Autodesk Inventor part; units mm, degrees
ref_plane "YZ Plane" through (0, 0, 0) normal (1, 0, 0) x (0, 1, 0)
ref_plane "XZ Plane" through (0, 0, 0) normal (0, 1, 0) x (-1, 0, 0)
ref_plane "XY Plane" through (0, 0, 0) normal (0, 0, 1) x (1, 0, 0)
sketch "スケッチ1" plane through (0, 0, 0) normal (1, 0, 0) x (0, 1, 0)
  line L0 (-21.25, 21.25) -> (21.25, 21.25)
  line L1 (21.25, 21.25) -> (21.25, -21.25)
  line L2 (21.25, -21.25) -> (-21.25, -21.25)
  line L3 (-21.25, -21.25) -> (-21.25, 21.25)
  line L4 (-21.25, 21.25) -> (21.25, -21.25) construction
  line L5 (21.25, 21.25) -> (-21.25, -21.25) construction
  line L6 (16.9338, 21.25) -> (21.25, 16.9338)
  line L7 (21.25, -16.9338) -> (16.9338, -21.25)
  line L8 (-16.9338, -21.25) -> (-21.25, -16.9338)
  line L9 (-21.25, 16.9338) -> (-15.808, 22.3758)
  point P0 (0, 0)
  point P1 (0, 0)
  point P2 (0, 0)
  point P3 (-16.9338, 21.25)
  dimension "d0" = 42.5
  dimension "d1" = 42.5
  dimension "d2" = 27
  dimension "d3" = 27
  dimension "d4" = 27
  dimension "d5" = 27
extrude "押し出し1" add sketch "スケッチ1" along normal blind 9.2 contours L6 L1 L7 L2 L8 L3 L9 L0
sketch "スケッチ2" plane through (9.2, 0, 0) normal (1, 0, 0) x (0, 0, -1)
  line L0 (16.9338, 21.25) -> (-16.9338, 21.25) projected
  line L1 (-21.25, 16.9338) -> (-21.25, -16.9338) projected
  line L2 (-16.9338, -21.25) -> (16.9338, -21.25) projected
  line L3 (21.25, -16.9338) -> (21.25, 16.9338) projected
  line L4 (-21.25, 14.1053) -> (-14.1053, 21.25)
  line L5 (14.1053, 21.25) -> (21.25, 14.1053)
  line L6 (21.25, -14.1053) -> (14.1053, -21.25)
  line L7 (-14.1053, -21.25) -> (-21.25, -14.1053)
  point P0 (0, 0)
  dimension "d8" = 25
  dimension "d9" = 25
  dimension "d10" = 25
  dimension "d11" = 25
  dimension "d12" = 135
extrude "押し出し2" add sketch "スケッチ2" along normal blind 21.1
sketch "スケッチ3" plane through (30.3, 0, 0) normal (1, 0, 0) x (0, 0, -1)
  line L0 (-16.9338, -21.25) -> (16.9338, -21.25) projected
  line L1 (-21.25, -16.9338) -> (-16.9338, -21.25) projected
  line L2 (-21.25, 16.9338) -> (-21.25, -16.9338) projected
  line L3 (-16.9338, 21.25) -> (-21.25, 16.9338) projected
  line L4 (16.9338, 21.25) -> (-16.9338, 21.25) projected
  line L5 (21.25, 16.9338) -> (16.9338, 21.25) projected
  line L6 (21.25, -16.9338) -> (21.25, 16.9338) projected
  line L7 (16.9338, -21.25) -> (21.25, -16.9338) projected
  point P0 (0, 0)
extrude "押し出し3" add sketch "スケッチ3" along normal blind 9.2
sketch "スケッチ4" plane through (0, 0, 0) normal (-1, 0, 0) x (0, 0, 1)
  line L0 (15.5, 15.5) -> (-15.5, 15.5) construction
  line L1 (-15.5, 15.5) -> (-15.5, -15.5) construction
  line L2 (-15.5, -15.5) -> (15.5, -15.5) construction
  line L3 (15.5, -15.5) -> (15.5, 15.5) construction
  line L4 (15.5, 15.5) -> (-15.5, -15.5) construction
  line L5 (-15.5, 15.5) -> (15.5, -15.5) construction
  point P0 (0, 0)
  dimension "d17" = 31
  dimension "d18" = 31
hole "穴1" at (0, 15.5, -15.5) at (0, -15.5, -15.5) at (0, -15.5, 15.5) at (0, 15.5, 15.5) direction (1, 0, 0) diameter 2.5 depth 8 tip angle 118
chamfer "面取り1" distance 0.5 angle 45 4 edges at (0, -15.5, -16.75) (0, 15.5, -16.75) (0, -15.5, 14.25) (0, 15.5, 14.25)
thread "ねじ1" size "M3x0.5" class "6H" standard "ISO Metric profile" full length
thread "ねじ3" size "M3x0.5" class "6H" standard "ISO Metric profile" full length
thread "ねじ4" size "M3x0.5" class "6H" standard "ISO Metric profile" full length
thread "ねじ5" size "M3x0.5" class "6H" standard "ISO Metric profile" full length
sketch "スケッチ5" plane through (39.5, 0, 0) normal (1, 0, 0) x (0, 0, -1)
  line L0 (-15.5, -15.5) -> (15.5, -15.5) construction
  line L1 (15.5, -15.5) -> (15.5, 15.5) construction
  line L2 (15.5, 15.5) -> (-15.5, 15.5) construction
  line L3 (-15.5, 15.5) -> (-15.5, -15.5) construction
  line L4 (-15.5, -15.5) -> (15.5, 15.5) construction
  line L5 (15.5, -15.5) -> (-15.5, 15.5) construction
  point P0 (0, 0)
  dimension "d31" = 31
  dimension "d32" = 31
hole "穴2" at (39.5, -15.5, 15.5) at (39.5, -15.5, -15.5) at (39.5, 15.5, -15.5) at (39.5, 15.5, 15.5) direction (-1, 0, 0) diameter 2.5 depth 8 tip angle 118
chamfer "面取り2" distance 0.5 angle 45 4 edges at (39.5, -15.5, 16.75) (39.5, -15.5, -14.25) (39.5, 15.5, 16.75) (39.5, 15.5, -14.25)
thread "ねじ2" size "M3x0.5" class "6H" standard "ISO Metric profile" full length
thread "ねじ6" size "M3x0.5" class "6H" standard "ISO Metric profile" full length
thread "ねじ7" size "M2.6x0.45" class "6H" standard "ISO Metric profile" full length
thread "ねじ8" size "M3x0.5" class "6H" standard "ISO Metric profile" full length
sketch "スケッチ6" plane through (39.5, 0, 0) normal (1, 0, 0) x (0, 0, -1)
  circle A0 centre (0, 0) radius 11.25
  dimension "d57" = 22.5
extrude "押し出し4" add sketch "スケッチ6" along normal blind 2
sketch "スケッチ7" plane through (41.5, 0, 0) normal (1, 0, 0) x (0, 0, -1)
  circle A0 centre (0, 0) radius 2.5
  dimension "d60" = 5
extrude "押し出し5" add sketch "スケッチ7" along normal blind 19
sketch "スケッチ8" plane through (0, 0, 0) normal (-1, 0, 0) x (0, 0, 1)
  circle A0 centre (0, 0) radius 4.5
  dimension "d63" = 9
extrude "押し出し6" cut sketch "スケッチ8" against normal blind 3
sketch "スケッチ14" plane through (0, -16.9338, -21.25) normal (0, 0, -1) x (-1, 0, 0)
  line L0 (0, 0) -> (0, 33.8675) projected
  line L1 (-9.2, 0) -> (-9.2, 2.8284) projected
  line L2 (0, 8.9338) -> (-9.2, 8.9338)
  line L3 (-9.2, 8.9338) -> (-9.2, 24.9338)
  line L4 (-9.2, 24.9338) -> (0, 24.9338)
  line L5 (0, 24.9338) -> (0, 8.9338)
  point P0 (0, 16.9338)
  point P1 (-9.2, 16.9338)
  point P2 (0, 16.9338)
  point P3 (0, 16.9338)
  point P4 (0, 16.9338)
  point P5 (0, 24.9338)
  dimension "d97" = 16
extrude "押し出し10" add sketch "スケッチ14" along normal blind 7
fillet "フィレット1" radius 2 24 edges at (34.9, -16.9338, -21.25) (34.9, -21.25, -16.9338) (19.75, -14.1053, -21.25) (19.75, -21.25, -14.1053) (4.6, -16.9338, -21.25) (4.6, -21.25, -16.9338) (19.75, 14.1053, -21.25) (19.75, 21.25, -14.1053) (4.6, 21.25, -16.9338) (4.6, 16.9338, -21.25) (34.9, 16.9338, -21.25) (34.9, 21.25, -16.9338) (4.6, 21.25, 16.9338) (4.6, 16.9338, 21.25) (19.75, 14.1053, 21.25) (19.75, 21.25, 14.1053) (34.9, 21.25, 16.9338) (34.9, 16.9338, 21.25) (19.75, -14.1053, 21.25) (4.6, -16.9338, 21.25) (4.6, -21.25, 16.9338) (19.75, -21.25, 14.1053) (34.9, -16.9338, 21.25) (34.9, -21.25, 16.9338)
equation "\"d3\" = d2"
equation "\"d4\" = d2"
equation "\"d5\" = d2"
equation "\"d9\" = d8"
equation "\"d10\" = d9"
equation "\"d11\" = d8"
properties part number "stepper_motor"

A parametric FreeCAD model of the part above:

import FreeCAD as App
import Part
import Sketcher

V = App.Vector


def edges_at(feature, points):
    """Names of the edges that pass closest to the given points."""
    edges = feature.Shape.Edges
    near = lambda p: min(range(len(edges)), key=lambda i: edges[i].distToShape(Part.Vertex(*p))[0])
    return sorted({f"Edge{near(p) + 1}" for p in points})

doc = App.newDocument("Part")
params = doc.addObject("Spreadsheet::Sheet", "Params")
for row, (alias, value) in enumerate([
    ("pad1_length", "9.2 mm"),
    ("pad2_length", "21.1 mm"),
    ("pad3_length", "9.2 mm"),
    ("sketch4_diameter", "2.5 mm"),
    ("hole_diameter", "2.5 mm"),
    ("hole_depth", "8 mm"),
    ("chamfer_size", "0.5 mm"),
    ("sketch5_diameter", "2.5 mm"),
    ("hole2_diameter", "2.5 mm"),
    ("hole2_depth", "8 mm"),
    ("chamfer2_size", "0.5 mm"),
    ("sketch6_diameter", "22.5 mm"),
    ("pad4_length", "2 mm"),
    ("sketch7_diameter", "5 mm"),
    ("pad5_length", "19 mm"),
    ("sketch8_diameter", "9 mm"),
    ("pocket1_length", "3 mm"),
    ("sketch9_height", "16 mm"),
    ("sketch9_width", "9.2 mm"),
    ("pad6_length", "7 mm"),
    ("fillet_radius", "2 mm"),
], start=1):
    params.set(f"A{row}", alias)
    params.set(f"B{row}", "=" + value)
    params.setAlias(f"B{row}", alias)

body = doc.addObject("PartDesign::Body", "Body")

# Sketch on YZ plane
sketch1 = body.newObject("Sketcher::SketchObject", "Sketch")
sketch1.AttachmentSupport = (doc.getObject("YZ_Plane"), [""])
sketch1.MapMode = "FlatFace"
sketch1.addGeometry([
    Part.LineSegment(V(21, 17, 0), V(17, 21, 0)),  # 0
    Part.LineSegment(V(17, 21, 0), V(-17, 21, 0)),  # 1
    Part.LineSegment(V(-17, 21, 0), V(-21, 17, 0)),  # 2
    Part.LineSegment(V(-21, 17, 0), V(-21, -17, 0)),  # 3
    Part.LineSegment(V(-21, -17, 0), V(-17, -21, 0)),  # 4
    Part.LineSegment(V(-17, -21, 0), V(17, -21, 0)),  # 5
    Part.LineSegment(V(17, -21, 0), V(21, -17, 0)),  # 6
    Part.LineSegment(V(21, -17, 0), V(21, 17, 0)),  # 7
], False)
sketch1.addConstraint([
    Sketcher.Constraint("Coincident", 0, 2, 1, 1),
    Sketcher.Constraint("Coincident", 1, 2, 2, 1),
    Sketcher.Constraint("Coincident", 2, 2, 3, 1),
    Sketcher.Constraint("Coincident", 3, 2, 4, 1),
    Sketcher.Constraint("Coincident", 4, 2, 5, 1),
    Sketcher.Constraint("Coincident", 5, 2, 6, 1),
    Sketcher.Constraint("Coincident", 6, 2, 7, 1),
    Sketcher.Constraint("Coincident", 7, 2, 0, 1),
    Sketcher.Constraint("Horizontal", 1),
    Sketcher.Constraint("Vertical", 3),
    Sketcher.Constraint("Horizontal", 5),
    Sketcher.Constraint("Vertical", 7),
    Sketcher.Constraint("Symmetric", 0, 2, 4, 2, -1, 1),
    Sketcher.Constraint("Symmetric", 2, 2, 6, 2, -1, 1),
    Sketcher.Constraint("Perpendicular", 0, 2),
    Sketcher.Constraint("Perpendicular", 2, 4),
    Sketcher.Constraint("Perpendicular", 4, 6),
    Sketcher.Constraint("Horizontal", 3, 2, 6, 2),
    Sketcher.Constraint("Vertical", 1, 2, 4, 2),
    Sketcher.Constraint("Equal", 5, 3),
    Sketcher.Constraint("DistanceY", 4, 2, 1, 2, 42.5),
    Sketcher.Constraint("Distance", 0, 6.104),
])
pad1 = body.newObject("PartDesign::Pad", "Pad")
pad1.Profile = sketch1
pad1.setExpression("Length", "Params.pad1_length")

# Sketch on YZ plane
sketch2 = body.newObject("Sketcher::SketchObject", "Sketch001")
sketch2.AttachmentSupport = (doc.getObject("YZ_Plane"), [""])
sketch2.MapMode = "FlatFace"
sketch2.AttachmentOffset = App.Placement(V(0, 0, 9.2), App.Rotation())
sketch2.addGeometry([
    Part.LineSegment(V(14, -21, 0), V(21, -14, 0)),  # 0
    Part.LineSegment(V(21, -14, 0), V(21, 14, 0)),  # 1
    Part.LineSegment(V(21, 14, 0), V(14, 21, 0)),  # 2
    Part.LineSegment(V(14, 21, 0), V(-14, 21, 0)),  # 3
    Part.LineSegment(V(-14, 21, 0), V(-21, 14, 0)),  # 4
    Part.LineSegment(V(-21, 14, 0), V(-21, -14, 0)),  # 5
    Part.LineSegment(V(-21, -14, 0), V(-14, -21, 0)),  # 6
    Part.LineSegment(V(-14, -21, 0), V(14, -21, 0)),  # 7
], False)
sketch2.addConstraint([
    Sketcher.Constraint("Coincident", 0, 2, 1, 1),
    Sketcher.Constraint("Coincident", 1, 2, 2, 1),
    Sketcher.Constraint("Coincident", 2, 2, 3, 1),
    Sketcher.Constraint("Coincident", 3, 2, 4, 1),
    Sketcher.Constraint("Coincident", 4, 2, 5, 1),
    Sketcher.Constraint("Coincident", 5, 2, 6, 1),
    Sketcher.Constraint("Coincident", 6, 2, 7, 1),
    Sketcher.Constraint("Coincident", 7, 2, 0, 1),
    Sketcher.Constraint("Vertical", 1),
    Sketcher.Constraint("Horizontal", 3),
    Sketcher.Constraint("Vertical", 5),
    Sketcher.Constraint("Horizontal", 7),
    Sketcher.Constraint("Symmetric", 0, 2, 4, 2, -1, 1),
    Sketcher.Constraint("Symmetric", 2, 2, 6, 2, -1, 1),
    Sketcher.Constraint("Perpendicular", 0, 2),
    Sketcher.Constraint("Perpendicular", 2, 4),
    Sketcher.Constraint("Perpendicular", 4, 6),
    Sketcher.Constraint("Horizontal", 1, 2, 4, 2),
    Sketcher.Constraint("Vertical", 3, 2, 6, 2),
    Sketcher.Constraint("Equal", 7, 1),
    Sketcher.Constraint("DistanceX", 4, 2, 1, 2, 42.5),
    Sketcher.Constraint("DistanceX", 3, 2, 3, 1, 28.2106),
])
pad2 = body.newObject("PartDesign::Pad", "Pad001")
pad2.Profile = sketch2
pad2.setExpression("Length", "Params.pad2_length")

# Sketch on YZ plane
sketch3 = body.newObject("Sketcher::SketchObject", "Sketch002")
sketch3.AttachmentSupport = (doc.getObject("YZ_Plane"), [""])
sketch3.MapMode = "FlatFace"
sketch3.AttachmentOffset = App.Placement(V(0, 0, 30.3), App.Rotation())
sketch3.addGeometry([
    Part.LineSegment(V(-17, 21, 0), V(-21, 17, 0)),  # 0
    Part.LineSegment(V(-21, 17, 0), V(-21, -17, 0)),  # 1
    Part.LineSegment(V(-21, -17, 0), V(-17, -21, 0)),  # 2
    Part.LineSegment(V(-17, -21, 0), V(17, -21, 0)),  # 3
    Part.LineSegment(V(17, -21, 0), V(21, -17, 0)),  # 4
    Part.LineSegment(V(21, -17, 0), V(21, 17, 0)),  # 5
    Part.LineSegment(V(21, 17, 0), V(17, 21, 0)),  # 6
    Part.LineSegment(V(17, 21, 0), V(-17, 21, 0)),  # 7
], False)
sketch3.addConstraint([
    Sketcher.Constraint("Coincident", 0, 2, 1, 1),
    Sketcher.Constraint("Coincident", 1, 2, 2, 1),
    Sketcher.Constraint("Coincident", 2, 2, 3, 1),
    Sketcher.Constraint("Coincident", 3, 2, 4, 1),
    Sketcher.Constraint("Coincident", 4, 2, 5, 1),
    Sketcher.Constraint("Coincident", 5, 2, 6, 1),
    Sketcher.Constraint("Coincident", 6, 2, 7, 1),
    Sketcher.Constraint("Coincident", 7, 2, 0, 1),
    Sketcher.Constraint("Vertical", 1),
    Sketcher.Constraint("Horizontal", 3),
    Sketcher.Constraint("Vertical", 5),
    Sketcher.Constraint("Horizontal", 7),
    Sketcher.Constraint("Symmetric", 0, 2, 4, 2, -1, 1),
    Sketcher.Constraint("Symmetric", 2, 2, 6, 2, -1, 1),
    Sketcher.Constraint("Perpendicular", 0, 2),
    Sketcher.Constraint("Perpendicular", 2, 4),
    Sketcher.Constraint("Perpendicular", 4, 6),
    Sketcher.Constraint("Horizontal", 1, 2, 4, 2),
    Sketcher.Constraint("Vertical", 3, 2, 6, 2),
    Sketcher.Constraint("Equal", 7, 1),
    Sketcher.Constraint("DistanceX", 1, 2, 4, 2, 42.5),
    Sketcher.Constraint("Distance", 0, 6.104),
])
pad3 = body.newObject("PartDesign::Pad", "Pad002")
pad3.Profile = sketch3
pad3.setExpression("Length", "Params.pad3_length")

# Sketch on YZ plane
sketch4 = body.newObject("Sketcher::SketchObject", "Sketch003")
sketch4.AttachmentSupport = (doc.getObject("YZ_Plane"), [""])
sketch4.MapMode = "FlatFace"
sketch4.addGeometry([
    Part.Circle(V(15.5, -15.5, 0), V(0, 0, 1), 1.2),
    Part.Circle(V(-15.5, -15.5, 0), V(0, 0, 1), 1.2),
    Part.Circle(V(-15.5, 15.5, 0), V(0, 0, 1), 1.2),
    Part.Circle(V(15.5, 15.5, 0), V(0, 0, 1), 1.2),
], False)
sketch4.addConstraint([
    Sketcher.Constraint("Equal", 0, 1),
    Sketcher.Constraint("Equal", 1, 2),
    Sketcher.Constraint("Equal", 2, 3),
    Sketcher.Constraint("Symmetric", 0, 3, 2, 3, -1, 1),
    Sketcher.Constraint("Symmetric", 1, 3, 3, 3, -1, 1),
    Sketcher.Constraint("Symmetric", 0, 3, 1, 3, -2),
    Sketcher.Constraint("Diameter", 0, 2.5),
    Sketcher.Constraint("DistanceX", 1, 3, 0, 3, 31.0),
    Sketcher.Constraint("DistanceY", 1, 3, 2, 3, 31.0),
])
sketch4.setExpression("Constraints[6]", "Params.sketch4_diameter")
doc.recompute()
hole = body.newObject("PartDesign::Hole", "Hole")
hole.Profile = sketch4
hole.ThreadType = "None"
hole.setExpression("Diameter", "Params.hole_diameter")
hole.DepthType = "Dimension"
hole.setExpression("Depth", "Params.hole_depth")
hole.DrillPoint = "Angled"
hole.DrillPointAngle = 118
hole.Reversed = True
doc.recompute()

chamfer = body.newObject("PartDesign::Chamfer", "Chamfer")
chamfer.Base = (hole, edges_at(hole, [
    (0, -15.5, -16.75),
    (0, 15.5, -16.75),
    (0, -15.5, 14.25),
    (0, 15.5, 14.25),
]))
chamfer.setExpression("Size", "Params.chamfer_size")

# Sketch on YZ plane
sketch5 = body.newObject("Sketcher::SketchObject", "Sketch004")
sketch5.AttachmentSupport = (doc.getObject("YZ_Plane"), [""])
sketch5.MapMode = "FlatFace"
sketch5.AttachmentOffset = App.Placement(V(0, 0, 39.5), App.Rotation())
sketch5.addGeometry([
    Part.Circle(V(-15.5, 15.5, 0), V(0, 0, 1), 1.2),
    Part.Circle(V(-15.5, -15.5, 0), V(0, 0, 1), 1.2),
    Part.Circle(V(15.5, -15.5, 0), V(0, 0, 1), 1.2),
    Part.Circle(V(15.5, 15.5, 0), V(0, 0, 1), 1.2),
], False)
sketch5.addConstraint([
    Sketcher.Constraint("Equal", 0, 1),
    Sketcher.Constraint("Equal", 1, 2),
    Sketcher.Constraint("Equal", 2, 3),
    Sketcher.Constraint("Symmetric", 0, 3, 2, 3, -1, 1),
    Sketcher.Constraint("Symmetric", 1, 3, 3, 3, -1, 1),
    Sketcher.Constraint("Symmetric", 1, 3, 2, 3, -2),
    Sketcher.Constraint("Diameter", 0, 2.5),
    Sketcher.Constraint("DistanceY", 1, 3, 0, 3, 31.0),
    Sketcher.Constraint("DistanceX", 1, 3, 2, 3, 31.0),
])
sketch5.setExpression("Constraints[6]", "Params.sketch5_diameter")
doc.recompute()
hole2 = body.newObject("PartDesign::Hole", "Hole001")
hole2.Profile = sketch5
hole2.ThreadType = "None"
hole2.setExpression("Diameter", "Params.hole2_diameter")
hole2.DepthType = "Dimension"
hole2.setExpression("Depth", "Params.hole2_depth")
hole2.DrillPoint = "Angled"
hole2.DrillPointAngle = 118
doc.recompute()

chamfer2 = body.newObject("PartDesign::Chamfer", "Chamfer001")
chamfer2.Base = (hole2, edges_at(hole2, [
    (39.5, -15.5, 16.75),
    (39.5, -15.5, -14.25),
    (39.5, 15.5, 16.75),
    (39.5, 15.5, -14.25),
]))
chamfer2.setExpression("Size", "Params.chamfer2_size")

# Sketch on YZ plane
sketch6 = body.newObject("Sketcher::SketchObject", "Sketch005")
sketch6.AttachmentSupport = (doc.getObject("YZ_Plane"), [""])
sketch6.MapMode = "FlatFace"
sketch6.AttachmentOffset = App.Placement(V(0, 0, 39.5), App.Rotation())
sketch6.addGeometry(Part.Circle(V(0, 0, 0), V(0, 0, 1), 11), False)
sketch6.addConstraint([
    Sketcher.Constraint("Coincident", 0, 3, -1, 1),
    Sketcher.Constraint("Diameter", 0, 22.5),
])
sketch6.setExpression("Constraints[1]", "Params.sketch6_diameter")
pad4 = body.newObject("PartDesign::Pad", "Pad003")
pad4.Profile = sketch6
pad4.setExpression("Length", "Params.pad4_length")

# Sketch on YZ plane
sketch7 = body.newObject("Sketcher::SketchObject", "Sketch006")
sketch7.AttachmentSupport = (doc.getObject("YZ_Plane"), [""])
sketch7.MapMode = "FlatFace"
sketch7.AttachmentOffset = App.Placement(V(0, 0, 41.5), App.Rotation())
sketch7.addGeometry(Part.Circle(V(0, 0, 0), V(0, 0, 1), 2.5), False)
sketch7.addConstraint([
    Sketcher.Constraint("Coincident", 0, 3, -1, 1),
    Sketcher.Constraint("Diameter", 0, 5.0),
])
sketch7.setExpression("Constraints[1]", "Params.sketch7_diameter")
pad5 = body.newObject("PartDesign::Pad", "Pad004")
pad5.Profile = sketch7
pad5.setExpression("Length", "Params.pad5_length")

# Sketch on YZ plane
sketch8 = body.newObject("Sketcher::SketchObject", "Sketch007")
sketch8.AttachmentSupport = (doc.getObject("YZ_Plane"), [""])
sketch8.MapMode = "FlatFace"
sketch8.addGeometry(Part.Circle(V(0, 0, 0), V(0, 0, 1), 4.5), False)
sketch8.addConstraint([
    Sketcher.Constraint("Coincident", 0, 3, -1, 1),
    Sketcher.Constraint("Diameter", 0, 9.0),
])
sketch8.setExpression("Constraints[1]", "Params.sketch8_diameter")
pocket1 = body.newObject("PartDesign::Pocket", "Pocket")
pocket1.Profile = sketch8
pocket1.setExpression("Length", "Params.pocket1_length")
pocket1.Reversed = True

# Sketch on XY plane
sketch9 = body.newObject("Sketcher::SketchObject", "Sketch008")
sketch9.AttachmentSupport = (doc.getObject("XY_Plane"), [""])
sketch9.MapMode = "FlatFace"
sketch9.AttachmentOffset = App.Placement(V(0, 0, -21.25), App.Rotation())
sketch9.addGeometry([
    Part.LineSegment(V(9, -8, 0), V(0, -8, 0)),
    Part.LineSegment(V(0, -8, 0), V(0, 8, 0)),
    Part.LineSegment(V(0, 8, 0), V(9, 8, 0)),
    Part.LineSegment(V(9, 8, 0), V(9, -8, 0)),
], False)
sketch9.addConstraint([
    Sketcher.Constraint("Coincident", 0, 2, 1, 1),
    Sketcher.Constraint("Coincident", 1, 2, 2, 1),
    Sketcher.Constraint("Coincident", 2, 2, 3, 1),
    Sketcher.Constraint("Coincident", 3, 2, 0, 1),
    Sketcher.Constraint("Horizontal", 0),
    Sketcher.Constraint("Vertical", 1),
    Sketcher.Constraint("Horizontal", 2),
    Sketcher.Constraint("Vertical", 3),
    Sketcher.Constraint("Symmetric", 0, 2, 1, 2, -1, 1),
    Sketcher.Constraint("DistanceY", 1, 1, 1, 2, 16.0),
    Sketcher.Constraint("DistanceX", 0, 2, 0, 1, 9.2),
])
sketch9.setExpression("Constraints[9]", "Params.sketch9_height")
sketch9.setExpression("Constraints[10]", "Params.sketch9_width")
pad6 = body.newObject("PartDesign::Pad", "Pad005")
pad6.Profile = sketch9
pad6.setExpression("Length", "Params.pad6_length")
pad6.Reversed = True
doc.recompute()

fillet = body.newObject("PartDesign::Fillet", "Fillet")
fillet.Base = (pad6, edges_at(pad6, [
    (34.9, -16.934, -21.25),
    (34.9, -21.25, -16.934),
    (19.75, -14.105, -21.25),
    (19.75, -21.25, -14.105),
    (4.6, -16.934, -21.25),
    (4.6, -21.25, -16.934),
    (19.75, 14.105, -21.25),
    (19.75, 21.25, -14.105),
    (4.6, 21.25, -16.934),
    (4.6, 16.934, -21.25),
    (34.9, 16.934, -21.25),
    (34.9, 21.25, -16.934),
    (4.6, 21.25, 16.934),
    (4.6, 16.934, 21.25),
    (19.75, 14.105, 21.25),
    (19.75, 21.25, 14.105),
    (34.9, 21.25, 16.934),
    (34.9, 16.934, 21.25),
    (19.75, -14.105, 21.25),
    (4.6, -16.934, 21.25),
    (4.6, -21.25, 16.934),
    (19.75, -21.25, 14.105),
    (34.9, -16.934, 21.25),
    (34.9, -21.25, 16.934),
]))
fillet.setExpression("Radius", "Params.fillet_radius")

doc.recompute()
